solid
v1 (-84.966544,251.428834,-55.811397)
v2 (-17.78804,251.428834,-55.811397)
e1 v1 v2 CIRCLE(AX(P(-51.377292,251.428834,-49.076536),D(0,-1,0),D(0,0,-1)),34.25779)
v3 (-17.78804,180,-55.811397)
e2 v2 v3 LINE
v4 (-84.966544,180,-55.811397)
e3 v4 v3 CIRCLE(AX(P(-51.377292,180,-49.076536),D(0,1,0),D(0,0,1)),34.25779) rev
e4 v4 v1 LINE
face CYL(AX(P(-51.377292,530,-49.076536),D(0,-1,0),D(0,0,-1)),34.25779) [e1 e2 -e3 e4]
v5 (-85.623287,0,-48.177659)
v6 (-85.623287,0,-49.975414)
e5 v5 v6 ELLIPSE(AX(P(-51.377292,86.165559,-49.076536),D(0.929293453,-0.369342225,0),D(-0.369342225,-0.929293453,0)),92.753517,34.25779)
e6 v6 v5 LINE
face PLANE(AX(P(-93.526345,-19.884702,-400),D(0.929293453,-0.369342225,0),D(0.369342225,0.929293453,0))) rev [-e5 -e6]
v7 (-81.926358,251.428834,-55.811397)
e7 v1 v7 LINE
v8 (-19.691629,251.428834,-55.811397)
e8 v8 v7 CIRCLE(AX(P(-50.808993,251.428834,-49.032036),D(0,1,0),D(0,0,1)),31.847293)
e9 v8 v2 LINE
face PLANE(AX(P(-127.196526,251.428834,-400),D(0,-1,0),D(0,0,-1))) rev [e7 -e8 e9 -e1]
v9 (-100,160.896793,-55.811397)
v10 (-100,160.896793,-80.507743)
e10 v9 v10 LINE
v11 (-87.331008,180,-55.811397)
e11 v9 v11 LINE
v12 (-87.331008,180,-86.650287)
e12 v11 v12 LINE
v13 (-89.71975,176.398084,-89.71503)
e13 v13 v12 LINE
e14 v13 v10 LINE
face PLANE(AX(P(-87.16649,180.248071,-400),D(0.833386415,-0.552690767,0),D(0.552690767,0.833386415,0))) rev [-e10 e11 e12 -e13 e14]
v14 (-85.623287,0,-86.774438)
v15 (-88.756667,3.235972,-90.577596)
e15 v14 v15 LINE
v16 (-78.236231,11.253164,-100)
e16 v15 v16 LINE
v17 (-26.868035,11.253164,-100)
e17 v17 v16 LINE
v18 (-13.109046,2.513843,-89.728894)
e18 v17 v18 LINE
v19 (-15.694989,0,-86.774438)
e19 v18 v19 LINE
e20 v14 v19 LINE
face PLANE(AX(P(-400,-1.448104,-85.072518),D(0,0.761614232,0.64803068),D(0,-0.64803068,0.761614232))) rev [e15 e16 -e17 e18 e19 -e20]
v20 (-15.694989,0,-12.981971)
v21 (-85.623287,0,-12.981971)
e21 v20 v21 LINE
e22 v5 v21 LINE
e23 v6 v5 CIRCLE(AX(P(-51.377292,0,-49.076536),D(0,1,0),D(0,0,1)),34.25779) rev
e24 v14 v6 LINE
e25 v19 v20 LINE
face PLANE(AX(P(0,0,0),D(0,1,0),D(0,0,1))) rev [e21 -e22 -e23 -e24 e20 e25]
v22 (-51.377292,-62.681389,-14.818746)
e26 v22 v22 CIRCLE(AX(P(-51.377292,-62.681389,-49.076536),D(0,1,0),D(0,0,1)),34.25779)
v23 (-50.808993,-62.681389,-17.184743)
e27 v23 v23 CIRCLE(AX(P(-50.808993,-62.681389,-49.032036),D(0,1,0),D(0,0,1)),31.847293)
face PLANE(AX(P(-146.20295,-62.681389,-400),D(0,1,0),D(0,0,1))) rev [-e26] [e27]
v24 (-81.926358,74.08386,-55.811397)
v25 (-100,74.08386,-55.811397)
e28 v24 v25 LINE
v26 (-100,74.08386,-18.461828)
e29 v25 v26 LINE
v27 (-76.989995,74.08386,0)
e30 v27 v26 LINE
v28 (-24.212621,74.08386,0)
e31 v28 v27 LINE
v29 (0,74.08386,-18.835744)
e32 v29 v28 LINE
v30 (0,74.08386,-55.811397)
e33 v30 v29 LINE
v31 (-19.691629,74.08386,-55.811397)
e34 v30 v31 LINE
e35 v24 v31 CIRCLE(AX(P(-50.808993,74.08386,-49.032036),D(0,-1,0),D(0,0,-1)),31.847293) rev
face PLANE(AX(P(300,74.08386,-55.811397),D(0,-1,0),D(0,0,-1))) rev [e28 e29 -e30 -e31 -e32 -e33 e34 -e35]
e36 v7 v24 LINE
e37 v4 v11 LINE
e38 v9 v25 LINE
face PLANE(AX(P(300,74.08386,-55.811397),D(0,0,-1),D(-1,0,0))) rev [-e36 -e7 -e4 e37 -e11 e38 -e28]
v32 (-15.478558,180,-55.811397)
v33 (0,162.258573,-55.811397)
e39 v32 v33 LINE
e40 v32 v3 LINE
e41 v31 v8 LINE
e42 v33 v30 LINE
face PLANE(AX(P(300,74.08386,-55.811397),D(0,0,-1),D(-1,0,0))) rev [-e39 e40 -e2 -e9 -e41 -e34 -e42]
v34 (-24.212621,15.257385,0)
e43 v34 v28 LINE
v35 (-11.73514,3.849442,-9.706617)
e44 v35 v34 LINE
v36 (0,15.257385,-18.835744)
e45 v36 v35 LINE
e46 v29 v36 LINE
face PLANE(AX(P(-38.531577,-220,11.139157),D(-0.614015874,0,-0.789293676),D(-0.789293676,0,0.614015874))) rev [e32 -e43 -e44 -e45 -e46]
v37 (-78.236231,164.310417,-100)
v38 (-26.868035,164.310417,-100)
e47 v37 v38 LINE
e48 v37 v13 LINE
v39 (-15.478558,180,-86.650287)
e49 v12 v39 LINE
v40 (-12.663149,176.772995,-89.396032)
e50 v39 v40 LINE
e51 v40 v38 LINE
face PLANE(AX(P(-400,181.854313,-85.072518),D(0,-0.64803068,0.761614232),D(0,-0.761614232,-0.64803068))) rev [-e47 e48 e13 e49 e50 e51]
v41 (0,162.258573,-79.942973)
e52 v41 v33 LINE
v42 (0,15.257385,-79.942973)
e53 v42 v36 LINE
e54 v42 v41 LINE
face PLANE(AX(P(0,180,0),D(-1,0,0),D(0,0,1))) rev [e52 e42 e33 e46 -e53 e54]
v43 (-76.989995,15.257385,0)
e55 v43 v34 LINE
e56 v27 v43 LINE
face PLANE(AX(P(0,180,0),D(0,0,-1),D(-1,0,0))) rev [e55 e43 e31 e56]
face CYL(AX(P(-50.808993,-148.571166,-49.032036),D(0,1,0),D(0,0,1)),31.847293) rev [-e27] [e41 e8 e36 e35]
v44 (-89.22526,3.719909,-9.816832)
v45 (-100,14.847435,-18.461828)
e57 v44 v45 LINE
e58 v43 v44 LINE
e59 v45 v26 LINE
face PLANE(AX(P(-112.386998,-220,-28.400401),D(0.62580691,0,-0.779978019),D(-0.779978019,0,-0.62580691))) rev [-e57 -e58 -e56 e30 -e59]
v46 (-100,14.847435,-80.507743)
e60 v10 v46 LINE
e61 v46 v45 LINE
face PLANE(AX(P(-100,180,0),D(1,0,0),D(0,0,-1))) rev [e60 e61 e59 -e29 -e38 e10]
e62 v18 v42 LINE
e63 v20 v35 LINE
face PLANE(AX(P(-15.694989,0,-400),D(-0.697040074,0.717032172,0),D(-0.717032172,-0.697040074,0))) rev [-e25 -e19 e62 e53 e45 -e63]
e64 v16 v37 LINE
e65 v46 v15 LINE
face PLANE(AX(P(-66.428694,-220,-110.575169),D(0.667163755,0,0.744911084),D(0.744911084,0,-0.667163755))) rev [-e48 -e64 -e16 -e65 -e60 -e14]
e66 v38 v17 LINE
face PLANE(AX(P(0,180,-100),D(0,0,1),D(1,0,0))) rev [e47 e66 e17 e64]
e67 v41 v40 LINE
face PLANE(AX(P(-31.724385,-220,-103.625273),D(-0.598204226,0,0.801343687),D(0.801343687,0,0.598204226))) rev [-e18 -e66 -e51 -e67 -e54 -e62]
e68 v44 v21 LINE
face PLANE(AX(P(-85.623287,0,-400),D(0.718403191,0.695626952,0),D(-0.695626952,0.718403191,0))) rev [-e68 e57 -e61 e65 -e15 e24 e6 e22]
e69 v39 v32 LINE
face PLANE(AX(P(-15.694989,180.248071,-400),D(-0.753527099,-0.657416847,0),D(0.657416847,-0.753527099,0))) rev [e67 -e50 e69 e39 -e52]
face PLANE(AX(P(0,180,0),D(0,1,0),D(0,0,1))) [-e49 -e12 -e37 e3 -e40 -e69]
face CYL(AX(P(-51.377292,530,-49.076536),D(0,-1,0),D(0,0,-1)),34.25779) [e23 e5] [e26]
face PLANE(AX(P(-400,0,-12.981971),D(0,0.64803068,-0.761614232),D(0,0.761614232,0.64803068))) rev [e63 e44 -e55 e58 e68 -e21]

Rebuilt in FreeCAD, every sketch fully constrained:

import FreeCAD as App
import Part
import Sketcher
from FreeCAD import Vector
Q = App.Units.Quantity


def add_polygon(sketch, points):
    """Adds a closed chain of lines whose ends are joined by coincident constraints."""
    first, n = sketch.GeometryCount, len(points)
    for a, b in zip(points, points[1:] + points[:1]):
        sketch.addGeometry(Part.LineSegment(App.Vector(*a, 0), App.Vector(*b, 0)), False)
    for i in range(n):
        sketch.addConstraint(Sketcher.Constraint("Coincident", first + i, 2, first + (i + 1) % n, 1))

doc = App.newDocument("Part")
body = doc.addObject("PartDesign::Body", "Body")

# Sketch on XZ plane
sketch1 = body.newObject("Sketcher::SketchObject", "Sketch")
sketch1.AttachmentSupport = (doc.getObject("XZ_Plane"), [""])
sketch1.MapMode = "FlatFace"
add_polygon(sketch1, [(-100, -100), (-100, 0), (0, 0), (0, -100)])  # lines 0-3
sketch1.addConstraint([
    Sketcher.Constraint("Vertical", 0),
    Sketcher.Constraint("Horizontal", 1),
    Sketcher.Constraint("Vertical", 2),
    Sketcher.Constraint("Horizontal", 3),
    Sketcher.Constraint("Coincident", 1, 2, -1, 1),
    Sketcher.Constraint("Equal", 3, 0),
    Sketcher.Constraint("DistanceX", 1, 1, 1, 2, Q("100 mm")),
])
pad1 = body.newObject("PartDesign::Pad", "Pad")
pad1.Profile = sketch1
pad1.Length = 180
pad1.Reversed = True

# Sketch on XZ plane
sketch2 = body.newObject("Sketcher::SketchObject", "Sketch001")
sketch2.AttachmentSupport = (doc.getObject("XZ_Plane"), [""])
sketch2.MapMode = "FlatFace"
sketch2.AttachmentOffset = App.Placement(Vector(0, 0, -180), App.Rotation())
sketch2.addGeometry(Part.Circle(Vector(-51, -49, 0), Vector(0, 0, 1), 34), False)
sketch2.addConstraint([
    Sketcher.Constraint("Diameter", 0, Q("68.51558 mm")),
    Sketcher.Constraint("DistanceX", 0, 3, -1, 1, Q("51.377292 mm")),
    Sketcher.Constraint("DistanceY", 0, 3, -1, 1, Q("49.076536 mm")),
])
pad2 = body.newObject("PartDesign::Pad", "Pad001")
pad2.Profile = sketch2
pad2.Length = 700
pad2.Midplane = True

# Sketch on YZ plane
sketch3 = body.newObject("Sketcher::SketchObject", "Sketch002")
sketch3.AttachmentSupport = (doc.getObject("YZ_Plane"), [""])
sketch3.MapMode = "FlatFace"
add_polygon(sketch3, [(644, 19), (361, 19), (361, -133), (644, -133)])  # lines 0-3
sketch3.addConstraint([
    Sketcher.Constraint("Horizontal", 0),
    Sketcher.Constraint("Vertical", 1),
    Sketcher.Constraint("Horizontal", 2),
    Sketcher.Constraint("Vertical", 3),
    Sketcher.Constraint("DistanceX", 0, 2, 0, 1, Q("282.452416 mm")),
    Sketcher.Constraint("DistanceY", 1, 2, 1, 1, Q("152.006357 mm")),
    Sketcher.Constraint("DistanceY", -1, 1, 0, 2, Q("18.583279 mm")),
    Sketcher.Constraint("DistanceX", -1, 1, 2, 2, Q("643.500511 mm")),
])
pocket1 = body.newObject("PartDesign::Pocket", "Pocket")
pocket1.Profile = sketch3
pocket1.Length = 400

# Sketch on YZ plane
sketch4 = body.newObject("Sketcher::SketchObject", "Sketch003")
sketch4.AttachmentSupport = (doc.getObject("YZ_Plane"), [""])
sketch4.MapMode = "FlatFace"
add_polygon(sketch4, [(0, -13), (26, 9), (-15, 19)])  # lines 0-2
add_polygon(sketch4, [(19, -109), (-1, -85), (-3, -116)])  # lines 3-5
add_polygon(sketch4, [(149, 9), (180, -13), (193, 15)])  # lines 6-8
add_polygon(sketch4, [(182, -85), (160, -104), (199, -106)])  # lines 9-11
sketch4.addConstraint([
    Sketcher.Constraint("PointOnObject", 2, 2, -2),
    Sketcher.Constraint("Perpendicular", 0, 3),
    Sketcher.Constraint("Perpendicular", 3, 9),
    Sketcher.Constraint("Perpendicular", 4, 10),
    Sketcher.Constraint("Horizontal", 2, 2, 6, 2),
    Sketcher.Constraint("Horizontal", 0, 2, 8, 2),
    Sketcher.Constraint("Horizontal", 3, 2, 11, 2),
    Sketcher.Constraint("DistanceX", -1, 1, 6, 2, Q("180 mm")),
    Sketcher.Constraint("DistanceX", 3, 2, 0, 2, Q("27.2762 mm")),
    Sketcher.Constraint("DistanceX", 0, 2, 8, 2, Q("122.7095 mm")),
    Sketcher.Constraint("Distance", 1, Q("42.187411 mm")),
    Sketcher.Constraint("Distance", 2, Q("35.04328 mm")),
    Sketcher.Constraint("Distance", 3, Q("31.72882 mm")),
    Sketcher.Constraint("Distance", 5, Q("23.35685 mm")),
    Sketcher.Constraint("Distance", 7, Q("31.325991 mm")),
    Sketcher.Constraint("Distance", 10, Q("38.918982 mm")),
    Sketcher.Constraint("Distance", 11, Q("26.935711 mm")),
    Sketcher.Constraint("DistanceY", 2, 2, -1, 1, Q("12.981971 mm")),
    Sketcher.Constraint("DistanceY", 5, 2, -1, 1, Q("109.237639 mm")),
    Sketcher.Constraint("DistanceY", -1, 1, 7, 2, Q("15.418179 mm")),
    Sketcher.Constraint("DistanceX", -1, 1, 9, 2, Q("159.795921 mm")),
    Sketcher.Constraint("DistanceY", 10, 2, -1, 1, Q("106.132549 mm")),
    Sketcher.Constraint("DistanceX", 1, 2, 0, 2, Q("41.087562 mm")),
    Sketcher.Constraint("DistanceX", 4, 2, 3, 2, Q("1.819279 mm")),
])
pocket2 = body.newObject("PartDesign::Pocket", "Pocket001")
pocket2.Profile = sketch4
pocket2.Length = 400

# Sketch on XY plane
sketch5 = body.newObject("Sketcher::SketchObject", "Sketch004")
sketch5.AttachmentSupport = (doc.getObject("XY_Plane"), [""])
sketch5.MapMode = "FlatFace"
add_polygon(sketch5, [(-86, 0), (-106, 21), (-122, 3), (-94, -20)])  # lines 0-3
add_polygon(sketch5, [(0, 15), (-16, 0), (11, -20), (12, 15)])  # lines 4-7
add_polygon(sketch5, [(-106, 151), (-87, 180), (-118, 201)])  # lines 8-10
add_polygon(sketch5, [(-16, 180), (8, 153), (0, 194)])  # lines 11-13
sketch5.addConstraint([
    Sketcher.Constraint("Horizontal", 7),
    Sketcher.Constraint("PointOnObject", 3, 2, -1),
    Sketcher.Constraint("PointOnObject", 4, 2, -1),
    Sketcher.Constraint("PointOnObject", 7, 2, -2),
    Sketcher.Constraint("PointOnObject", 12, 2, -2),
    Sketcher.Constraint("Perpendicular", 8, 9),
    Sketcher.Constraint("Perpendicular", 11, 13),
    Sketcher.Constraint("Horizontal", 2, 2, 5, 2),
    Sketcher.Constraint("Horizontal", 8, 2, 13, 2),
    Sketcher.Constraint("Vertical", 0, 2, 10, 2),
    Sketcher.Constraint("Vertical", 4, 2, 13, 2),
    Sketcher.Constraint("Angle", 4, Q("-135.809992 deg")),
    Sketcher.Constraint("Distance", 13, Q("20.828698 mm")),
    Sketcher.Constraint("DistanceY", 2, 2, -1, 1, Q("19.884702 mm")),
    Sketcher.Constraint("DistanceX", 3, 2, 4, 2, Q("69.928299 mm")),
    Sketcher.Constraint("DistanceX", 8, 2, 13, 2, Q("71.471502 mm")),
    Sketcher.Constraint("Distance", 1, Q("24.19219 mm")),
    Sketcher.Constraint("Distance", 4, Q("21.888821 mm")),
    Sketcher.Constraint("Distance", 5, Q("32.937621 mm")),
    Sketcher.Constraint("Distance", 8, Q("34.746171 mm")),
    Sketcher.Constraint("Distance", 9, Q("36.644441 mm")),
    Sketcher.Constraint("DistanceX", 7, 2, 7, 1, Q("12.122677 mm")),
    Sketcher.Constraint("DistanceX", 1, 2, -1, 1, Q("122.288862 mm")),
    Sketcher.Constraint("DistanceY", -1, 1, 1, 2, Q("3.20926 mm")),
    Sketcher.Constraint("DistanceY", -1, 1, 8, 2, Q("180.248071 mm")),
    Sketcher.Constraint("DistanceX", 9, 2, -1, 1, Q("117.705469 mm")),
    Sketcher.Constraint("DistanceX", 11, 2, 6, 2, Q("4.28891 mm")),
    Sketcher.Constraint("Distance", 2, Q("36.886494 mm")),
])
pocket3 = body.newObject("PartDesign::Pocket", "Pocket002")
pocket3.Profile = sketch5
pocket3.Length = 400

# Sketch on XZ plane
sketch6 = body.newObject("Sketcher::SketchObject", "Sketch005")
sketch6.AttachmentSupport = (doc.getObject("XZ_Plane"), [""])
sketch6.MapMode = "FlatFace"
sketch6.AttachmentOffset = App.Placement(Vector(0, 0, -180), App.Rotation())
add_polygon(sketch6, [(-64, 10), (-112, -28), (-125, 16), (-84, 16)])  # lines 0-3
add_polygon(sketch6, [(-97, -136), (-119, -78), (-118, -64), (-66, -111)])  # lines 4-7
add_polygon(sketch6, [(-25, 22), (11, 9), (17, -32), (-39, 11)])  # lines 8-11
add_polygon(sketch6, [(35, -107), (-17, -141), (-32, -104), (9, -73)])  # lines 12-15
sketch6.addConstraint([
    Sketcher.Constraint("Horizontal", 2),
    Sketcher.Constraint("Distance", 13, Q("39.826802 mm")),
    Sketcher.Constraint("Distance", 14, Q("51.2013 mm")),
    Sketcher.Constraint("DistanceY", 0, 2, -1, 1, Q("28.400401 mm")),
    Sketcher.Constraint("DistanceX", 1, 2, 8, 2, Q("135.741798 mm")),
    Sketcher.Constraint("DistanceY", 6, 2, 9, 2, Q("78.181401 mm")),
    Sketcher.Constraint("DistanceY", 3, 2, 10, 2, Q("0.926398 mm")),
    Sketcher.Constraint("DistanceX", 12, 2, 9, 2, Q("34.873801 mm")),
    Sketcher.Constraint("DistanceX", 13, 2, 12, 2, Q("14.278901 mm")),
    Sketcher.Constraint("Distance", 3, Q("20.830418 mm")),
    Sketcher.Constraint("Distance", 4, Q("62.207332 mm")),
    Sketcher.Constraint("Distance", 5, Q("13.510919 mm")),
    Sketcher.Constraint("Distance", 6, Q("69.289678 mm")),
    Sketcher.Constraint("Distance", 15, Q("43.081341 mm")),
    Sketcher.Constraint("DistanceX", 2, 1, 2, 2, Q("40.243323 mm")),
    Sketcher.Constraint("DistanceX", 1, 2, -1, 1, Q("124.64969 mm")),
    Sketcher.Constraint("DistanceY", -1, 1, 1, 2, Q("15.511928 mm")),
    Sketcher.Constraint("DistanceY", -1, 1, 3, 2, Q("10.212759 mm")),
    Sketcher.Constraint("DistanceY", 4, 2, -1, 1, Q("77.792689 mm")),
    Sketcher.Constraint("DistanceY", 6, 2, -1, 1, Q("110.575169 mm")),
    Sketcher.Constraint("DistanceY", -1, 1, 11, 2, Q("21.815841 mm")),
    Sketcher.Constraint("DistanceY", 14, 2, -1, 1, Q("72.996439 mm")),
    Sketcher.Constraint("DistanceY", 15, 2, -1, 1, Q("107.262521 mm")),
    Sketcher.Constraint("DistanceX", 1, 2, 0, 2, Q("12.262692 mm")),
    Sketcher.Constraint("DistanceX", 4, 2, 3, 2, Q("55.11426 mm")),
    Sketcher.Constraint("DistanceX", 4, 2, 5, 2, Q("1.332181 mm")),
    Sketcher.Constraint("DistanceY", 7, 2, 5, 2, Q("71.514149 mm")),
    Sketcher.Constraint("DistanceY", 9, 2, 8, 2, Q("41.367381 mm")),
    Sketcher.Constraint("DistanceX", 3, 2, 9, 2, Q("81.689581 mm")),
    Sketcher.Constraint("DistanceX", 2, 2, 10, 2, Q("45.87479 mm")),
    Sketcher.Constraint("DistanceX", 10, 2, 11, 2, Q("13.83517 mm")),
    Sketcher.Constraint("DistanceY", 12, 2, 7, 2, Q("4.942639 mm")),
])
pocket4 = body.newObject("PartDesign::Pocket", "Pocket003")
pocket4.Profile = sketch6
pocket4.Length = 400
pocket4.Reversed = True

# Sketch on XY plane
sketch7 = body.newObject("Sketcher::SketchObject", "Sketch006")
sketch7.AttachmentSupport = (doc.getObject("XY_Plane"), [""])
sketch7.MapMode = "FlatFace"
add_polygon(sketch7, [(-146, -63), (-146, -210), (14, -210), (14, -63)])  # lines 0-3
sketch7.addConstraint([
    Sketcher.Constraint("Vertical", 0),
    Sketcher.Constraint("Horizontal", 1),
    Sketcher.Constraint("Vertical", 2),
    Sketcher.Constraint("Horizontal", 3),
    Sketcher.Constraint("DistanceX", 1, 1, 1, 2, Q("160.159382 mm")),
    Sketcher.Constraint("DistanceY", 0, 2, 0, 1, Q("147.362276 mm")),
    Sketcher.Constraint("DistanceX", 0, 2, -1, 1, Q("146.20295 mm")),
    Sketcher.Constraint("DistanceY", 2, 2, -1, 1, Q("62.681389 mm")),
])
pocket5 = body.newObject("PartDesign::Pocket", "Pocket004")
pocket5.Profile = sketch7
pocket5.Length = 400

# Sketch on XY plane
sketch8 = body.newObject("Sketcher::SketchObject", "Sketch007")
sketch8.AttachmentSupport = (doc.getObject("XY_Plane"), [""])
sketch8.MapMode = "FlatFace"
add_polygon(sketch8, [(-127, 413), (-127, 251), (20, 251), (20, 413)])  # lines 0-3
sketch8.addConstraint([
    Sketcher.Constraint("Vertical", 0),
    Sketcher.Constraint("Horizontal", 1),
    Sketcher.Constraint("Vertical", 2),
    Sketcher.Constraint("Horizontal", 3),
    Sketcher.Constraint("DistanceX", 1, 1, 1, 2, Q("147.310745 mm")),
    Sketcher.Constraint("DistanceY", 0, 2, 0, 1, Q("162.038907 mm")),
    Sketcher.Constraint("DistanceX", -1, 1, 1, 2, Q("20.114219 mm")),
    Sketcher.Constraint("DistanceY", -1, 1, 2, 2, Q("413.467741 mm")),
])
pocket6 = body.newObject("PartDesign::Pocket", "Pocket005")
pocket6.Profile = sketch8
pocket6.Length = 400

# Sketch on XZ plane
sketch9 = body.newObject("Sketcher::SketchObject", "Sketch008")
sketch9.AttachmentSupport = (doc.getObject("XZ_Plane"), [""])
sketch9.MapMode = "FlatFace"
sketch9.AttachmentOffset = App.Placement(Vector(0, 0, -251.428834), App.Rotation())
sketch9.addGeometry(Part.Circle(Vector(-51, -49, 0), Vector(0, 0, 1), 32), False)
sketch9.addConstraint([
    Sketcher.Constraint("Diameter", 0, Q("63.694587 mm")),
    Sketcher.Constraint("DistanceX", 0, 3, -1, 1, Q("50.808993 mm")),
    Sketcher.Constraint("DistanceY", 0, 3, -1, 1, Q("49.032036 mm")),
])
pocket7 = body.newObject("PartDesign::Pocket", "Pocket006")
pocket7.Profile = sketch9
pocket7.Length = 400
pocket7.Reversed = True

# Sketch on YZ plane
sketch10 = body.newObject("Sketcher::SketchObject", "Sketch009")
sketch10.AttachmentSupport = (doc.getObject("YZ_Plane"), [""])
sketch10.MapMode = "FlatFace"
sketch10.AttachmentOffset = App.Placement(Vector(0, 0, -100), App.Rotation())
add_polygon(sketch10, [(286, -56), (74, -56), (74, 84), (286, 84)])  # lines 0-3
sketch10.addConstraint([
    Sketcher.Constraint("Horizontal", 0),
    Sketcher.Constraint("Vertical", 1),
    Sketcher.Constraint("Horizontal", 2),
    Sketcher.Constraint("Vertical", 3),
    Sketcher.Constraint("DistanceX", 0, 2, 0, 1, Q("212.033531 mm")),
    Sketcher.Constraint("DistanceY", 1, 1, 1, 2, Q("140.220962 mm")),
    Sketcher.Constraint("DistanceX", -1, 1, 0, 2, Q("74.08386 mm")),
    Sketcher.Constraint("DistanceY", 0, 2, -1, 1, Q("55.811397 mm")),
])
pocket8 = body.newObject("PartDesign::Pocket", "Pocket007")
pocket8.Profile = sketch10
pocket8.Length = 400
pocket8.Reversed = True

doc.recompute()
